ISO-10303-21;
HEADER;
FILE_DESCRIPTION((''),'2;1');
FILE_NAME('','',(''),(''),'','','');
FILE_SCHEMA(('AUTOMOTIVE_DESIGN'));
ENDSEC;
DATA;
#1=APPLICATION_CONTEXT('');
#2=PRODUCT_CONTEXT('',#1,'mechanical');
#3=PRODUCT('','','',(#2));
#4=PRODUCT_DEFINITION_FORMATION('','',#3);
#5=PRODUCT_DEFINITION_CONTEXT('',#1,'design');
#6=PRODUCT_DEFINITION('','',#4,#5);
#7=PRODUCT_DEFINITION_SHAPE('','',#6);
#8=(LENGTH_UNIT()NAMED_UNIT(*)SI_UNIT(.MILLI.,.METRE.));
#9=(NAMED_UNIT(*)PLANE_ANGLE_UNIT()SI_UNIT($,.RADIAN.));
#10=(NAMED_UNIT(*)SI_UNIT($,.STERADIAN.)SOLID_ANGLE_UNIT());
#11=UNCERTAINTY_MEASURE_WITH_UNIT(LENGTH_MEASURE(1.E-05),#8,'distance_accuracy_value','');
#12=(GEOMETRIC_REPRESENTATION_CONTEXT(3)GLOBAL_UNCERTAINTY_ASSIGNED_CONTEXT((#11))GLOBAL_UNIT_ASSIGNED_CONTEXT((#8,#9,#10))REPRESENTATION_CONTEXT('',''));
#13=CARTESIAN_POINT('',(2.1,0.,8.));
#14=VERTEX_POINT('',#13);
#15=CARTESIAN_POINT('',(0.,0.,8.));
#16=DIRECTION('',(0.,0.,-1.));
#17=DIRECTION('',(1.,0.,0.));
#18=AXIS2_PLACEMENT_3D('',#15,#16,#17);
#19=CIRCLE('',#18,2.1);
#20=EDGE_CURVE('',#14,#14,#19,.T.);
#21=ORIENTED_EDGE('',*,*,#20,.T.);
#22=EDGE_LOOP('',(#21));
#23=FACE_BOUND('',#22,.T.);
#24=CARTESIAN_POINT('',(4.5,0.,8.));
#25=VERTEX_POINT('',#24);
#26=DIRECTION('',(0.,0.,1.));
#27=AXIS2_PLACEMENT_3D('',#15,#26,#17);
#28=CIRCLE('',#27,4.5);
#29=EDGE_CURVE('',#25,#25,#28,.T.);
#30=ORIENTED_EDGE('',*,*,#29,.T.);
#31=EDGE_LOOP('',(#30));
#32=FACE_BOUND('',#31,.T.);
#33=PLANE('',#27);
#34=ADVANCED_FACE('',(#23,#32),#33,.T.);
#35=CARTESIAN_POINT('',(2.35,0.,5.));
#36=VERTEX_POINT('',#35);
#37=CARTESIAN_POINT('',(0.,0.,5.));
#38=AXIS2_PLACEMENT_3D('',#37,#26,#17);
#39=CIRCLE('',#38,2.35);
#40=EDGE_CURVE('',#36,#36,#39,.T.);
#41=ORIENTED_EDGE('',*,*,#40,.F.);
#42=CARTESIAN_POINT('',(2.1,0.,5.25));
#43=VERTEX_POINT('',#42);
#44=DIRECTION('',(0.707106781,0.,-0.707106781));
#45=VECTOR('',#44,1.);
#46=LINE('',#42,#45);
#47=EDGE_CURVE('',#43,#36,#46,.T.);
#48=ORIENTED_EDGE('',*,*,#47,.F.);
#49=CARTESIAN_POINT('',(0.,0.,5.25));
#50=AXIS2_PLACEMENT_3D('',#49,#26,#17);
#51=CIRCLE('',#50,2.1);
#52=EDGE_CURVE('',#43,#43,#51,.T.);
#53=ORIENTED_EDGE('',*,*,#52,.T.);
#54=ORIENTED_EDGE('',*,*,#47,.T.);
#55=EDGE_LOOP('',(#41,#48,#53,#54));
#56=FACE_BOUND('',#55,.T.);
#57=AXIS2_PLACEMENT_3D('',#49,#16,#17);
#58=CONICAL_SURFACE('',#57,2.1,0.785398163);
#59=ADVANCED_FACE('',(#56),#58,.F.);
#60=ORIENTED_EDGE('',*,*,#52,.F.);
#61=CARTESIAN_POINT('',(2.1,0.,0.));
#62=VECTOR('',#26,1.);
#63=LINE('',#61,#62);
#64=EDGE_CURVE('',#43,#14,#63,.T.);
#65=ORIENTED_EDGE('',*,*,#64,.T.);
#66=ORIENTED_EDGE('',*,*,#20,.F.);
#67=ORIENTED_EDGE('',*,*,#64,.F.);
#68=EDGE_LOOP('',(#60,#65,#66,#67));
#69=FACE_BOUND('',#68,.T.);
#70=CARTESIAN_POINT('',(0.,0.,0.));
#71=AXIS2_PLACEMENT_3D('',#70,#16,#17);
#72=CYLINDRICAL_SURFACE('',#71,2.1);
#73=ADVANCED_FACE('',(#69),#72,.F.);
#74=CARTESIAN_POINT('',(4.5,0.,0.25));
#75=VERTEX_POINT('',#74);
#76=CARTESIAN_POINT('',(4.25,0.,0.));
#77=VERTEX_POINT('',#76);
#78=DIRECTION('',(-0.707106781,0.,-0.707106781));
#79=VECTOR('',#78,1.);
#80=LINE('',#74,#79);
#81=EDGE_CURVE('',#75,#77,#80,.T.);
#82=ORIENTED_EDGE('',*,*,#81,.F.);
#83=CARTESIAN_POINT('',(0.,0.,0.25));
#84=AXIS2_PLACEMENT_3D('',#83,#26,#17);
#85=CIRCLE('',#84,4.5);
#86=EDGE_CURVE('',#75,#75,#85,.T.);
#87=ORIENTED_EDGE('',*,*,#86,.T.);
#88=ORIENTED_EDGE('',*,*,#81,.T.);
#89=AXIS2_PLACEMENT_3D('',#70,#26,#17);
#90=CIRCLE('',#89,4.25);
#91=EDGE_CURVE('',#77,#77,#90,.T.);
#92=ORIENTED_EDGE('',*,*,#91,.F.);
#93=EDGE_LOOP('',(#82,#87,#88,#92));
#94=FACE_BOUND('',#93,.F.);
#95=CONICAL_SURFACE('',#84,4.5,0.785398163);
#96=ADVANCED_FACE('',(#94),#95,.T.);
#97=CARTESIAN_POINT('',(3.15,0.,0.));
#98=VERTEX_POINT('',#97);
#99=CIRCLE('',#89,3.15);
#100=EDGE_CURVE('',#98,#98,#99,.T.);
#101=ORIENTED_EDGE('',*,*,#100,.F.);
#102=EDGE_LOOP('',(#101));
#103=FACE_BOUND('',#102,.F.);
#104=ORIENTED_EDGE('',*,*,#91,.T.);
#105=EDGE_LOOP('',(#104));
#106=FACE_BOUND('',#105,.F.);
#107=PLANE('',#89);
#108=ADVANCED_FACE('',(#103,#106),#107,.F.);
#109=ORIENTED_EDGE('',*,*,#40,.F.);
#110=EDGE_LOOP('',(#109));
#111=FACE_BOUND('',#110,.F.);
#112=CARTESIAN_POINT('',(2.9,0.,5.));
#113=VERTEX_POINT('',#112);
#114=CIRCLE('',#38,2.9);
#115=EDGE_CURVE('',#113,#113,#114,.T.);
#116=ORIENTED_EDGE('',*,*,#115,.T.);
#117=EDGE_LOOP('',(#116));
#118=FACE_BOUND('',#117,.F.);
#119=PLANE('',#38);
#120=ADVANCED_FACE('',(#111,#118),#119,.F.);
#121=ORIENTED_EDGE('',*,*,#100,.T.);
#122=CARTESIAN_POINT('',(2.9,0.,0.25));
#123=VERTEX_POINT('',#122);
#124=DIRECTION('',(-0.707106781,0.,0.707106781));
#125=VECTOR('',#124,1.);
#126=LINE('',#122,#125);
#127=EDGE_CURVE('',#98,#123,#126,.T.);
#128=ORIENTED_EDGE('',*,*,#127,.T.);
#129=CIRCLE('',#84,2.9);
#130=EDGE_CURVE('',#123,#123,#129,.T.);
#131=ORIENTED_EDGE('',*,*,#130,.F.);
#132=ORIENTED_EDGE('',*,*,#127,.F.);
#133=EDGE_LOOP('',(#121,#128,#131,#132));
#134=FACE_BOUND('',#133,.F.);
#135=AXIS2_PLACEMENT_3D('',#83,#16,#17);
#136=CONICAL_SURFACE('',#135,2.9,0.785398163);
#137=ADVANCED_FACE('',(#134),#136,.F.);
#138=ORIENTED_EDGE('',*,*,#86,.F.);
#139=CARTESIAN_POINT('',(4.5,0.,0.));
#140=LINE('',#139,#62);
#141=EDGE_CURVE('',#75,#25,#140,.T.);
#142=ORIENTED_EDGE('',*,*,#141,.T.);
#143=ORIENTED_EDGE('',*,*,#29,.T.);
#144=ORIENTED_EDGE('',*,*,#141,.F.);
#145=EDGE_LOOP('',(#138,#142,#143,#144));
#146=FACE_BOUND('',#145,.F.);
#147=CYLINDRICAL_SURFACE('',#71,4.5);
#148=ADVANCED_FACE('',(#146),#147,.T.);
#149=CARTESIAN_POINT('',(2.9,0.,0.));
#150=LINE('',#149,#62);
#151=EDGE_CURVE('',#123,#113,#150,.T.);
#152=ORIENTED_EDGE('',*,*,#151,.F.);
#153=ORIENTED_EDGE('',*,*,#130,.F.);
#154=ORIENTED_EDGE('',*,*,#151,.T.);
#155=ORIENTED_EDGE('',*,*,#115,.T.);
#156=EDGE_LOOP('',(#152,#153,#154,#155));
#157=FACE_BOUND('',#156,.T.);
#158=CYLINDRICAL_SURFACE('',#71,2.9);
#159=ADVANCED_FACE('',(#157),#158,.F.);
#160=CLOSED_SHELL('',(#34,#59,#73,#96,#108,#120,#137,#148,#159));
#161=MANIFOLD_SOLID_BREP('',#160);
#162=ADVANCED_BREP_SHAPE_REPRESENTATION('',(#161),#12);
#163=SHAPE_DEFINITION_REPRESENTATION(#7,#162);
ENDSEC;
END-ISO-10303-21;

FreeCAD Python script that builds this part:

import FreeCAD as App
import Part
import Sketcher
from FreeCAD import Vector
Q = App.Units.Quantity


def edges_at(feature, points):
    """Names of the edges that pass closest to the given points."""
    edges = feature.Shape.Edges
    near = lambda p: min(range(len(edges)), key=lambda i: edges[i].distToShape(Part.Vertex(*p))[0])
    return sorted({f"Edge{near(p) + 1}" for p in points})

doc = App.newDocument("Part")
params = doc.addObject("Spreadsheet::Sheet", "Params")
for row, (alias, value) in enumerate([
    ("sketch1_diameter", "9 mm"),
    ("pad1_length", "8 mm"),
    ("sketch2_diameter", "4.2 mm"),
    ("sketch3_diameter", "5.8 mm"),
    ("sketch3_diameter2", "4.2 mm"),
    ("pocket2_length", "5 mm"),
    ("chamfer_size", "0.25 mm"),
], start=1):
    params.set(f"A{row}", alias)
    params.set(f"B{row}", "=" + value)
    params.setAlias(f"B{row}", alias)

body = doc.addObject("PartDesign::Body", "Body")

# Sketch on XY plane
sketch1 = body.newObject("Sketcher::SketchObject", "Sketch")
sketch1.AttachmentSupport = (doc.getObject("XY_Plane"), [""])
sketch1.MapMode = "FlatFace"
sketch1.addGeometry(Part.Circle(Vector(0, 0, 0), Vector(0, 0, 1), 4.5), False)
sketch1.addConstraint(Sketcher.Constraint("Coincident", 0, 3, -1, 1))
sketch1.addConstraint(Sketcher.Constraint("Diameter", 0, Q("9 mm")))
sketch1.setExpression("Constraints[1]", "Params.sketch1_diameter")
pad1 = body.newObject("PartDesign::Pad", "Pad")
pad1.Profile = sketch1
pad1.setExpression("Length", "Params.pad1_length")

# Sketch on XY plane
sketch2 = body.newObject("Sketcher::SketchObject", "Sketch001")
sketch2.AttachmentSupport = (doc.getObject("XY_Plane"), [""])
sketch2.MapMode = "FlatFace"
sketch2.addGeometry(Part.Circle(Vector(0, 0, 0), Vector(0, 0, 1), 2.1), False)
sketch2.addConstraint(Sketcher.Constraint("Coincident", 0, 3, -1, 1))
sketch2.addConstraint(Sketcher.Constraint("Diameter", 0, Q("4.2 mm")))
sketch2.setExpression("Constraints[1]", "Params.sketch2_diameter")
pocket1 = body.newObject("PartDesign::Pocket", "Pocket")
pocket1.Profile = sketch2
pocket1.Type = "ThroughAll"
pocket1.Reversed = True

# Sketch on XY plane
sketch3 = body.newObject("Sketcher::SketchObject", "Sketch002")
sketch3.AttachmentSupport = (doc.getObject("XY_Plane"), [""])
sketch3.MapMode = "FlatFace"
sketch3.addGeometry(Part.Circle(Vector(0, 0, 0), Vector(0, 0, 1), 2.9), False)
sketch3.addGeometry(Part.Circle(Vector(0, 0, 0), Vector(0, 0, 1), 2.1), False)
sketch3.addConstraint(Sketcher.Constraint("Coincident", 0, 3, -1, 1))
sketch3.addConstraint(Sketcher.Constraint("Coincident", 1, 3, -1, 1))
sketch3.addConstraint(Sketcher.Constraint("Diameter", 0, Q("5.8 mm")))
sketch3.addConstraint(Sketcher.Constraint("Diameter", 1, Q("4.2 mm")))
sketch3.setExpression("Constraints[2]", "Params.sketch3_diameter")
sketch3.setExpression("Constraints[3]", "Params.sketch3_diameter2")
pocket2 = body.newObject("PartDesign::Pocket", "Pocket001")
pocket2.Profile = sketch3
pocket2.setExpression("Length", "Params.pocket2_length")
pocket2.Reversed = True
doc.recompute()

chamfer = body.newObject("PartDesign::Chamfer", "Chamfer")
chamfer.Base = (pocket2, edges_at(pocket2, [(-2.1, 0, 5), (-2.9, 0, 0), (-4.5, 0, 0)]))
chamfer.setExpression("Size", "Params.chamfer_size")

doc.recompute()
